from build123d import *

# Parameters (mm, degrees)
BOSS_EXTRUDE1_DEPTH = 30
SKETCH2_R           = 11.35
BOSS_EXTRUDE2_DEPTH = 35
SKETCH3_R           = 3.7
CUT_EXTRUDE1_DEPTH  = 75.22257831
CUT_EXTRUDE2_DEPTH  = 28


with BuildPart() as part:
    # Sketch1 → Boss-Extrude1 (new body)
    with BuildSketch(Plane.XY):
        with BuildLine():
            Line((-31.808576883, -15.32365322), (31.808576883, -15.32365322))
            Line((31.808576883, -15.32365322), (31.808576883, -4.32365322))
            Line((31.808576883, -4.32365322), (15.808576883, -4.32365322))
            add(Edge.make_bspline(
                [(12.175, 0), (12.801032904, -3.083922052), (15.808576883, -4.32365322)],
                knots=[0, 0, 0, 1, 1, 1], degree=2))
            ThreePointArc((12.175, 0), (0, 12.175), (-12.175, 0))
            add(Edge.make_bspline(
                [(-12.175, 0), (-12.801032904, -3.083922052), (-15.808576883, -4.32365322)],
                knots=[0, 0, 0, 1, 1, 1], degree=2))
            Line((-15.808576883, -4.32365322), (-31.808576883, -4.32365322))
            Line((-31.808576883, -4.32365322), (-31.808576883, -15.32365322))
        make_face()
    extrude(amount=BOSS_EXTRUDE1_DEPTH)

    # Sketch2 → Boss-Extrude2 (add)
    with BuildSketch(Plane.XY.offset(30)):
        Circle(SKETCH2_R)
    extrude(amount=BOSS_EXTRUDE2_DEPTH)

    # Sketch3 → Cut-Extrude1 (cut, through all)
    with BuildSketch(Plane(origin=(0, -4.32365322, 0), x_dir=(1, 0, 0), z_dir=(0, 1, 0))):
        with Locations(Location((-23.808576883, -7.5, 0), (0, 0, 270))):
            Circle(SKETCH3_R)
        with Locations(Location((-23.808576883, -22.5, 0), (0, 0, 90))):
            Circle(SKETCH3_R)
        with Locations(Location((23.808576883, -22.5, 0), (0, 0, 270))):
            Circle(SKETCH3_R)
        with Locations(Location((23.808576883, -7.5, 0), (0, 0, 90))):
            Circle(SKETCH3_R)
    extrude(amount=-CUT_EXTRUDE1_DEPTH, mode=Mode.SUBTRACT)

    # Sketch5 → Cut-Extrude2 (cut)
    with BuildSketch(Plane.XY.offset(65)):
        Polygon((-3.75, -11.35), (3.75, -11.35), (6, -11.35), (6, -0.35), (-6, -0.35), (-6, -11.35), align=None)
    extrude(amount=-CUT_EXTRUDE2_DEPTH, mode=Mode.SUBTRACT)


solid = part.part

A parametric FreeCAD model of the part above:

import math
import FreeCAD as App
import Part
import Sketcher

V = App.Vector
Q = App.Units.Quantity

doc = App.newDocument("Part")
params = doc.addObject("Spreadsheet::Sheet", "Params")
for row, (alias, value) in enumerate([
    ("sketch1_width", "16 mm"),
    ("sketch1_height", "11 mm"),
    ("pad1_length", "30 mm"),
    ("sketch2_diameter", "22.7 mm"),
    ("pad2_length", "35 mm"),
    ("sketch3_diameter", "7.4 mm"),
    ("sketch4_width", "12 mm"),
    ("sketch4_height", "11 mm"),
    ("pocket2_length", "28 mm"),
], start=1):
    params.set(f"A{row}", alias)
    params.set(f"B{row}", "=" + value)
    params.setAlias(f"B{row}", alias)

body = doc.addObject("PartDesign::Body", "Body")

sketch1 = body.newObject("Sketcher::SketchObject", "Sketch")
sketch1.AttachmentSupport = (doc.getObject("XY_Plane"), [""])
sketch1.MapMode = "FlatFace"
sketch1.addGeometry(Part.LineSegment(V(-31.808577, -15.323653, 0), V(31.808577, -15.323653, 0)), False)
sketch1.addGeometry(Part.LineSegment(V(31.808577, -15.323653, 0), V(31.808577, -4.323653, 0)), False)
sketch1.addGeometry(Part.LineSegment(V(31.808577, -4.323653, 0), V(15.808577, -4.323653, 0)), False)
sketch1.addGeometry(Part.BSplineCurve([V(12.175, 0, 0), V(12.801033, -3.083922, 0), V(15.808577, -4.323653, 0)], [3, 3], [0, 1], False, 2, [1, 1, 1], False), False)
sketch1.addGeometry(Part.ArcOfCircle(Part.Circle(V(0, 0, 0), V(0, 0, 1), 12.175), math.radians(0), math.radians(180)), False)
sketch1.addGeometry(Part.BSplineCurve([V(-12.175, 0, 0), V(-12.801033, -3.083922, 0), V(-15.808577, -4.323653, 0)], [3, 3], [0, 1], False, 2, [1, 1, 1], False), False)
sketch1.addGeometry(Part.LineSegment(V(-15.808577, -4.323653, 0), V(-31.808577, -4.323653, 0)), False)
sketch1.addGeometry(Part.LineSegment(V(-31.808577, -4.323653, 0), V(-31.808577, -15.323653, 0)), False)
sketch1.addConstraint(Sketcher.Constraint("Block", 3))
sketch1.addConstraint(Sketcher.Constraint("Block", 5))
sketch1.addConstraint(Sketcher.Constraint("Coincident", 0, 2, 1, 1))
sketch1.addConstraint(Sketcher.Constraint("Coincident", 1, 2, 2, 1))
sketch1.addConstraint(Sketcher.Constraint("Coincident", 2, 2, 3, 2))
sketch1.addConstraint(Sketcher.Constraint("Coincident", 3, 1, 4, 1))
sketch1.addConstraint(Sketcher.Constraint("Coincident", 4, 2, 5, 1))
sketch1.addConstraint(Sketcher.Constraint("Coincident", 5, 2, 6, 1))
sketch1.addConstraint(Sketcher.Constraint("Coincident", 6, 2, 7, 1))
sketch1.addConstraint(Sketcher.Constraint("Coincident", 7, 2, 0, 1))
sketch1.addConstraint(Sketcher.Constraint("Horizontal", 0))
sketch1.addConstraint(Sketcher.Constraint("Vertical", 1))
sketch1.addConstraint(Sketcher.Constraint("Horizontal", 2))
sketch1.addConstraint(Sketcher.Constraint("Horizontal", 6))
sketch1.addConstraint(Sketcher.Constraint("Vertical", 7))
sketch1.addConstraint(Sketcher.Constraint("Equal", 2, 6))
sketch1.addConstraint(Sketcher.Constraint("DistanceX", 2, 2, 2, 1, Q("16 mm")))
sketch1.addConstraint(Sketcher.Constraint("DistanceY", 1, 1, 1, 2, Q("11 mm")))
sketch1.addConstraint(Sketcher.Constraint("DistanceY", 0, 2, 4, 3, Q("15.323653 mm")))
sketch1.setExpression("Constraints[16]", "Params.sketch1_width")
sketch1.setExpression("Constraints[17]", "Params.sketch1_height")
pad1 = body.newObject("PartDesign::Pad", "Pad")
pad1.Profile = sketch1
pad1.setExpression("Length", "Params.pad1_length")

sketch2 = body.newObject("Sketcher::SketchObject", "Sketch001")
sketch2.AttachmentSupport = (doc.getObject("XY_Plane"), [""])
sketch2.MapMode = "FlatFace"
sketch2.AttachmentOffset = App.Placement(V(0, 0, 30), App.Rotation())
sketch2.addGeometry(Part.Circle(V(0, 0, 0), V(0, 0, 1), 11), False)
sketch2.addConstraint(Sketcher.Constraint("Coincident", 0, 3, -1, 1))
sketch2.addConstraint(Sketcher.Constraint("Diameter", 0, Q("22.7 mm")))
sketch2.setExpression("Constraints[1]", "Params.sketch2_diameter")
pad2 = body.newObject("PartDesign::Pad", "Pad001")
pad2.Profile = sketch2
pad2.setExpression("Length", "Params.pad2_length")

sketch3 = body.newObject("Sketcher::SketchObject", "Sketch002")
sketch3.AttachmentSupport = (doc.getObject("XZ_Plane"), [""])
sketch3.MapMode = "FlatFace"
sketch3.AttachmentOffset = App.Placement(V(0, 0, 4.323653), App.Rotation())
sketch3.addGeometry(Part.Circle(V(-23.8, 7.5, 0), V(0, 0, 1), 3.7), False)
sketch3.addGeometry(Part.Circle(V(-23.8, 22.5, 0), V(0, 0, 1), 3.7), False)
sketch3.addGeometry(Part.Circle(V(23.8, 22.5, 0), V(0, 0, 1), 3.7), False)
sketch3.addGeometry(Part.Circle(V(23.8, 7.5, 0), V(0, 0, 1), 3.7), False)
sketch3.addConstraint(Sketcher.Constraint("Equal", 0, 1))
sketch3.addConstraint(Sketcher.Constraint("Equal", 1, 2))
sketch3.addConstraint(Sketcher.Constraint("Equal", 2, 3))
sketch3.addConstraint(Sketcher.Constraint("Symmetric", 1, 3, 2, 3, -2))
sketch3.addConstraint(Sketcher.Constraint("Symmetric", 0, 3, 3, 3, -2))
sketch3.addConstraint(Sketcher.Constraint("Vertical", 0, 3, 1, 3))
sketch3.addConstraint(Sketcher.Constraint("Diameter", 0, Q("7.4 mm")))
sketch3.addConstraint(Sketcher.Constraint("DistanceY", 0, 3, 1, 3, Q("15 mm")))
sketch3.addConstraint(Sketcher.Constraint("DistanceY", -1, 1, 0, 3, Q("7.5 mm")))
sketch3.addConstraint(Sketcher.Constraint("DistanceX", 0, 3, -1, 1, Q("23.808577 mm")))
sketch3.setExpression("Constraints[6]", "Params.sketch3_diameter")
pocket1 = body.newObject("PartDesign::Pocket", "Pocket")
pocket1.Profile = sketch3
pocket1.Type = "ThroughAll"
pocket1.Reversed = True

sketch4 = body.newObject("Sketcher::SketchObject", "Sketch003")
sketch4.AttachmentSupport = (doc.getObject("XY_Plane"), [""])
sketch4.MapMode = "FlatFace"
sketch4.AttachmentOffset = App.Placement(V(0, 0, 65), App.Rotation())
sketch4.addGeometry(Part.LineSegment(V(6, -11, 0), V(6, 0, 0)), False)
sketch4.addGeometry(Part.LineSegment(V(6, 0, 0), V(-6, 0, 0)), False)
sketch4.addGeometry(Part.LineSegment(V(-6, 0, 0), V(-6, -11, 0)), False)
sketch4.addGeometry(Part.LineSegment(V(-6, -11, 0), V(6, -11, 0)), False)
sketch4.addConstraint(Sketcher.Constraint("Coincident", 0, 2, 1, 1))
sketch4.addConstraint(Sketcher.Constraint("Coincident", 1, 2, 2, 1))
sketch4.addConstraint(Sketcher.Constraint("Coincident", 2, 2, 3, 1))
sketch4.addConstraint(Sketcher.Constraint("Coincident", 3, 2, 0, 1))
sketch4.addConstraint(Sketcher.Constraint("Vertical", 0))
sketch4.addConstraint(Sketcher.Constraint("Horizontal", 1))
sketch4.addConstraint(Sketcher.Constraint("Vertical", 2))
sketch4.addConstraint(Sketcher.Constraint("Horizontal", 3))
sketch4.addConstraint(Sketcher.Constraint("DistanceX", 1, 2, 1, 1, Q("12 mm")))
sketch4.addConstraint(Sketcher.Constraint("DistanceY", 0, 1, 0, 2, Q("11 mm")))
sketch4.addConstraint(Sketcher.Constraint("DistanceX", -1, 1, 0, 2, Q("6 mm")))
sketch4.addConstraint(Sketcher.Constraint("DistanceY", 0, 2, -1, 1, Q("0.35 mm")))
sketch4.setExpression("Constraints[8]", "Params.sketch4_width")
sketch4.setExpression("Constraints[9]", "Params.sketch4_height")
pocket2 = body.newObject("PartDesign::Pocket", "Pocket001")
pocket2.Profile = sketch4
pocket2.setExpression("Length", "Params.pocket2_length")

doc.recompute()
